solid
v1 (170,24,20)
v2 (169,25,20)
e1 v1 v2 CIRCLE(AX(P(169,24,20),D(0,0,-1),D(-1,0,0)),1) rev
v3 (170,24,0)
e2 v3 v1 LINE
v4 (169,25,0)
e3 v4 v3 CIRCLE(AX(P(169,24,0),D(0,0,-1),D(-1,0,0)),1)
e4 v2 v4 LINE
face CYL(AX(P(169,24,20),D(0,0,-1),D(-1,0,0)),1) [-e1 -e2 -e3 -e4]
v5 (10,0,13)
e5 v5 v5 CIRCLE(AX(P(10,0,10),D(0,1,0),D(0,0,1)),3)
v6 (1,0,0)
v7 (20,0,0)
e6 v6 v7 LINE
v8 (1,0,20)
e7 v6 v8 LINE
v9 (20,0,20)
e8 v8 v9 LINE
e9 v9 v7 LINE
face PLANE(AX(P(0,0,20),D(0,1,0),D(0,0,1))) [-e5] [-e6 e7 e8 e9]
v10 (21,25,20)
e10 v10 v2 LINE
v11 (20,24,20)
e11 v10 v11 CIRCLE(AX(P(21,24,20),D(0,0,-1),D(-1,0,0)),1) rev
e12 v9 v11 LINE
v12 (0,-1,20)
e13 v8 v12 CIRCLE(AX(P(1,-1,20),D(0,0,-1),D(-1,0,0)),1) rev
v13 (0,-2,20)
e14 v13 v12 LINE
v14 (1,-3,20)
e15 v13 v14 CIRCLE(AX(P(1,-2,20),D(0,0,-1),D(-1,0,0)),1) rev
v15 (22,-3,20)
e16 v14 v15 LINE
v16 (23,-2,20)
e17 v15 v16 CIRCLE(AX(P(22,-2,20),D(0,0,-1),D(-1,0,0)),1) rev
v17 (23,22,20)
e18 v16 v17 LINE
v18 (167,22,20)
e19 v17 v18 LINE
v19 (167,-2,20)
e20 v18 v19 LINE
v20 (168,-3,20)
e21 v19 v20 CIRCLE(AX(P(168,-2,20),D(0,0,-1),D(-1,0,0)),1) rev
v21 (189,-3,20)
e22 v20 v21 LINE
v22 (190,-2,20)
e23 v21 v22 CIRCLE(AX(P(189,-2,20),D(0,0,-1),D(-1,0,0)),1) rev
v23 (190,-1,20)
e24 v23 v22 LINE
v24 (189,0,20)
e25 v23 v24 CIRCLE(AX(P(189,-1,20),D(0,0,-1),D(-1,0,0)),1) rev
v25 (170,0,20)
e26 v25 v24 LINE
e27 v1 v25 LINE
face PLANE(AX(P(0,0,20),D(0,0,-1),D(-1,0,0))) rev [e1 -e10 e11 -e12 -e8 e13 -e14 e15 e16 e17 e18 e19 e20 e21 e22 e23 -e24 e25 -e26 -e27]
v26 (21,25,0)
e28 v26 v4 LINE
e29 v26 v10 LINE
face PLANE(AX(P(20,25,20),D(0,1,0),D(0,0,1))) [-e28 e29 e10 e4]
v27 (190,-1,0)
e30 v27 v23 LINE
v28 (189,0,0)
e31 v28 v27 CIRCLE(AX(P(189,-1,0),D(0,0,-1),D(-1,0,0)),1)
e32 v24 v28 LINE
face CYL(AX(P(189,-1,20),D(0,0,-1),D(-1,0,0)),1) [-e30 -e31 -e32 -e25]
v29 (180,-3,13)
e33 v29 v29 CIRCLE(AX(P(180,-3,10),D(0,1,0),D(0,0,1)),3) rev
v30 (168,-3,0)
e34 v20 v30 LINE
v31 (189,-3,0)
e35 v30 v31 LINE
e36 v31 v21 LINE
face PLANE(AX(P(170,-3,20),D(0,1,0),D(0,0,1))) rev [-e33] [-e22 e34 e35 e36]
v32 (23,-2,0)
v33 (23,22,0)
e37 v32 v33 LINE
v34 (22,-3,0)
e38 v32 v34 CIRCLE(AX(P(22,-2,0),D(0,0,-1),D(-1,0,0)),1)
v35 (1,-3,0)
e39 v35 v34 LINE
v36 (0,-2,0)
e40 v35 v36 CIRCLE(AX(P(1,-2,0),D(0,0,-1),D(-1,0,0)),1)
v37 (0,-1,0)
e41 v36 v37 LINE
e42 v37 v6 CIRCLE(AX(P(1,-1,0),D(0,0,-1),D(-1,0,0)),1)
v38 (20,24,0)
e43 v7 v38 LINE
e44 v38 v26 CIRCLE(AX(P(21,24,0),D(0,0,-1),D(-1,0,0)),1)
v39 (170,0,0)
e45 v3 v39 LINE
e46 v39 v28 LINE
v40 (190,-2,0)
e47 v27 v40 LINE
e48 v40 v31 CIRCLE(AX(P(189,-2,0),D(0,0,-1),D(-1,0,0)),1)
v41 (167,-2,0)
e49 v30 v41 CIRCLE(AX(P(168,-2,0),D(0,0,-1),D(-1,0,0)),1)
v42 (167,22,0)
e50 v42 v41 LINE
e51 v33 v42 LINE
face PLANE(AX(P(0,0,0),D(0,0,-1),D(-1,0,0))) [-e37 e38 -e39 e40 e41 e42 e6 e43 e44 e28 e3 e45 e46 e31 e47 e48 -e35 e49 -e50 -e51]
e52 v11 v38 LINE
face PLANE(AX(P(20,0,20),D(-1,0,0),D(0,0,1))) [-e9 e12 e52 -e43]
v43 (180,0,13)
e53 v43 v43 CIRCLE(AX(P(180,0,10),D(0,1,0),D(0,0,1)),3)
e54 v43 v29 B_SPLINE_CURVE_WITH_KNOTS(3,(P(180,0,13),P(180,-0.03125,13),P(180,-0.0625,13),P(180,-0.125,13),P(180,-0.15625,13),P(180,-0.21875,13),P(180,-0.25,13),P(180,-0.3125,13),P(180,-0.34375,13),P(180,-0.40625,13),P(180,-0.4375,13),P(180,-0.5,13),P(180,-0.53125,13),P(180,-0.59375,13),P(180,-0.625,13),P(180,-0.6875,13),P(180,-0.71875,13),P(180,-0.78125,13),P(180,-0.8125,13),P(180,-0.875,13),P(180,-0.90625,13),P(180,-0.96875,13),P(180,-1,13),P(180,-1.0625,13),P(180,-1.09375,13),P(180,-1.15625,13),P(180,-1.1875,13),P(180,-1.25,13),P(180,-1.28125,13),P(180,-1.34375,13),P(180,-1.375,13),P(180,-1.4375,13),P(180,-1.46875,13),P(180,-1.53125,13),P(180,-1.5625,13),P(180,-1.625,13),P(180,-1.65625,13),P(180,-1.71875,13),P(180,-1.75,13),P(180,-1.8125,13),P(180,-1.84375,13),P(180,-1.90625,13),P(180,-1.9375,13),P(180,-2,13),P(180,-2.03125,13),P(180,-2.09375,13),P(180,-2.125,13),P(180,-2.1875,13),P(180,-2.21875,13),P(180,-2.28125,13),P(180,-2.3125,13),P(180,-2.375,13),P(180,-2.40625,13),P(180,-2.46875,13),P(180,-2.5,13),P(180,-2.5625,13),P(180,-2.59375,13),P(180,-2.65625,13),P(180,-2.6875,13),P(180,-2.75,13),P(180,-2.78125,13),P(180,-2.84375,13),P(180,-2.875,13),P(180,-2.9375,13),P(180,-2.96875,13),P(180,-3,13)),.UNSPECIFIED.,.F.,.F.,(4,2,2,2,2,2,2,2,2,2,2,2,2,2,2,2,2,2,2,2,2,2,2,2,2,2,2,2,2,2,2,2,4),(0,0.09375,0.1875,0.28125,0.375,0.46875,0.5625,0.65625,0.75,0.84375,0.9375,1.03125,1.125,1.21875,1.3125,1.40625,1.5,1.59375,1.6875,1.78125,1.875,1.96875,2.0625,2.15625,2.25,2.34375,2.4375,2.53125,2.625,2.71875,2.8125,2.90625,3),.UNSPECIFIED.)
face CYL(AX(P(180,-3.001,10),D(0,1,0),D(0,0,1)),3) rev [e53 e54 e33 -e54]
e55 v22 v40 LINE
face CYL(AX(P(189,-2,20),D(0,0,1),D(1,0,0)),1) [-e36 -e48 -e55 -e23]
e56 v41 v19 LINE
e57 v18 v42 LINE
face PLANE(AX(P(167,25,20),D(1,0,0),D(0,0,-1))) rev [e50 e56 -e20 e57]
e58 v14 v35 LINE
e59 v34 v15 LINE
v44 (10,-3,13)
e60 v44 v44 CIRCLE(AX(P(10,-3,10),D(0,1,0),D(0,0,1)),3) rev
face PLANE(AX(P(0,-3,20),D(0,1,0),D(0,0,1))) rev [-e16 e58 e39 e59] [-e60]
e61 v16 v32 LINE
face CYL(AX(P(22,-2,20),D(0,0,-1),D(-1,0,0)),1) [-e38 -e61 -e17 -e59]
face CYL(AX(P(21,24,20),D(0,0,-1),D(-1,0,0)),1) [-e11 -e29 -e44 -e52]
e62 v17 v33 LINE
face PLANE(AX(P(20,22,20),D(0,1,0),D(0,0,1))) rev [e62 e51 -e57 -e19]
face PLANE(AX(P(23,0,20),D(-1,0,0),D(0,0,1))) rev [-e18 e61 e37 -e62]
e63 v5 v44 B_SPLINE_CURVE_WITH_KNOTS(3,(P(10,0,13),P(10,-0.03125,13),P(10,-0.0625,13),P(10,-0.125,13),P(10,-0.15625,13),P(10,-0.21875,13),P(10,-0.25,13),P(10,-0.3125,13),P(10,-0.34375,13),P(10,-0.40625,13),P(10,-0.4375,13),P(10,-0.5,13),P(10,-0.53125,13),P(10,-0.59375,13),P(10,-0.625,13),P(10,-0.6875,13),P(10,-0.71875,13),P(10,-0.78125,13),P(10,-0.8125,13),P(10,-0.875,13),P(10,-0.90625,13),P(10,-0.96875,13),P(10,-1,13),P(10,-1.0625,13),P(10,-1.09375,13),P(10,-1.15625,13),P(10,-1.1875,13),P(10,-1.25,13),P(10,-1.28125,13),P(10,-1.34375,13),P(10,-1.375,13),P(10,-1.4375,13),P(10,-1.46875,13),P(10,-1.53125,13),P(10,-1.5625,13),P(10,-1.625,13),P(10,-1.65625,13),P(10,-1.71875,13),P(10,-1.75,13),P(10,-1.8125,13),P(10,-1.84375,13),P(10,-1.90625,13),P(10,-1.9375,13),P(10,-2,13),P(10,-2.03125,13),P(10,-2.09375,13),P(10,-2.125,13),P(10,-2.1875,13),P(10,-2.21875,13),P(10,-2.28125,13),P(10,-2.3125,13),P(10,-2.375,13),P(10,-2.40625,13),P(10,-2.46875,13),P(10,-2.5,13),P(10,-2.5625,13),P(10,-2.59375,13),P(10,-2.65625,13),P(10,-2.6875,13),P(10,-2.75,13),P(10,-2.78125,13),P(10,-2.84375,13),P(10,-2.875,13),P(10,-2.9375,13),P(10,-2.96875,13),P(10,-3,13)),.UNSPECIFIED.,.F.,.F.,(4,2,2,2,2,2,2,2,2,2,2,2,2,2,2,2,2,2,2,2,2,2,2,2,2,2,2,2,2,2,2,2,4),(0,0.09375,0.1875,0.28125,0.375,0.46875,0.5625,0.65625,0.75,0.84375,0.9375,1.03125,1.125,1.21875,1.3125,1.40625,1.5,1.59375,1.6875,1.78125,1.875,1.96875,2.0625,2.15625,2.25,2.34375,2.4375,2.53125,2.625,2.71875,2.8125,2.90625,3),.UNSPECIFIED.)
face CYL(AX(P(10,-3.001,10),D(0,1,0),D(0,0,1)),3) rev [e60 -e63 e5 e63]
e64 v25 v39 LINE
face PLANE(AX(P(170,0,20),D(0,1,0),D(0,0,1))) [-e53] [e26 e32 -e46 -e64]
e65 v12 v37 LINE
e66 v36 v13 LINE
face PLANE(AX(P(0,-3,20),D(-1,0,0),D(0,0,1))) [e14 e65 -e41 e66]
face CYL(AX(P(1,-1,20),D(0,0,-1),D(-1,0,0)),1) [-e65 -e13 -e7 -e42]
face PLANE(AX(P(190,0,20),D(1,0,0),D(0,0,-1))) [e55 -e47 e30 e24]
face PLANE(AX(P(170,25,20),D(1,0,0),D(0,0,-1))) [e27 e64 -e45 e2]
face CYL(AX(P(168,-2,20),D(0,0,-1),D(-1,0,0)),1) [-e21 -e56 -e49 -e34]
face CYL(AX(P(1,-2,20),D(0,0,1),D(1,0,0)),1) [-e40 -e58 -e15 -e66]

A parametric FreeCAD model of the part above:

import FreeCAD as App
import Part
import Sketcher


def edges_at(feature, points):
    """Names of the edges that pass closest to the given points."""
    edges = feature.Shape.Edges
    near = lambda p: min(range(len(edges)), key=lambda i: edges[i].distToShape(Part.Vertex(*p))[0])
    return sorted({f"Edge{near(p) + 1}" for p in points})

doc = App.newDocument("Part")
body = doc.addObject("PartDesign::Body", "Body")

# Sketch on XY plane
sketch1 = body.newObject("Sketcher::SketchObject", "Sketch")
sketch1.AttachmentSupport = (doc.getObject("XY_Plane"), [""])
sketch1.MapMode = "FlatFace"
sketch1.addGeometry([
    Part.LineSegment(App.Vector(20, 0, 0), App.Vector(0, 0, 0)),  # 0
    Part.LineSegment(App.Vector(0, 0, 0), App.Vector(0, -3, 0)),  # 1
    Part.LineSegment(App.Vector(0, -3, 0), App.Vector(23, -3, 0)),  # 2
    Part.LineSegment(App.Vector(23, -3, 0), App.Vector(23, 22, 0)),  # 3
    Part.LineSegment(App.Vector(23, 22, 0), App.Vector(167, 22, 0)),  # 4
    Part.LineSegment(App.Vector(167, 22, 0), App.Vector(167, -3, 0)),  # 5
    Part.LineSegment(App.Vector(167, -3, 0), App.Vector(190, -3, 0)),  # 6
    Part.LineSegment(App.Vector(190, -3, 0), App.Vector(190, 0, 0)),  # 7
    Part.LineSegment(App.Vector(190, 0, 0), App.Vector(170, 0, 0)),  # 8
    Part.LineSegment(App.Vector(170, 0, 0), App.Vector(170, 25, 0)),  # 9
    Part.LineSegment(App.Vector(170, 25, 0), App.Vector(20, 25, 0)),  # 10
    Part.LineSegment(App.Vector(20, 25, 0), App.Vector(20, 0, 0)),  # 11
], False)
sketch1.addConstraint([
    Sketcher.Constraint("Coincident", 0, 2, 1, 1),
    Sketcher.Constraint("Coincident", 1, 2, 2, 1),
    Sketcher.Constraint("Coincident", 2, 2, 3, 1),
    Sketcher.Constraint("Coincident", 3, 2, 4, 1),
    Sketcher.Constraint("Coincident", 4, 2, 5, 1),
    Sketcher.Constraint("Coincident", 5, 2, 6, 1),
    Sketcher.Constraint("Coincident", 6, 2, 7, 1),
    Sketcher.Constraint("Coincident", 7, 2, 8, 1),
    Sketcher.Constraint("Coincident", 8, 2, 9, 1),
    Sketcher.Constraint("Coincident", 9, 2, 10, 1),
    Sketcher.Constraint("Coincident", 10, 2, 11, 1),
    Sketcher.Constraint("Coincident", 11, 2, 0, 1),
    Sketcher.Constraint("Horizontal", 0),
    Sketcher.Constraint("Vertical", 1),
    Sketcher.Constraint("Horizontal", 2),
    Sketcher.Constraint("Vertical", 3),
    Sketcher.Constraint("Horizontal", 4),
    Sketcher.Constraint("Vertical", 5),
    Sketcher.Constraint("Horizontal", 6),
    Sketcher.Constraint("Vertical", 7),
    Sketcher.Constraint("Horizontal", 8),
    Sketcher.Constraint("Vertical", 9),
    Sketcher.Constraint("Horizontal", 10),
    Sketcher.Constraint("Vertical", 11),
    Sketcher.Constraint("Coincident", 0, 2, -1, 1),
    Sketcher.Constraint("PointOnObject", 7, 2, -1),
    Sketcher.Constraint("Horizontal", 2, 2, 5, 2),
    Sketcher.Constraint("Equal", 2, 6),
    Sketcher.Constraint("Equal", 0, 8),
    Sketcher.Constraint("Equal", 5, 9),
    Sketcher.Constraint("DistanceX", 0, 2, 0, 1, 20.0),
    Sketcher.Constraint("DistanceX", 2, 1, 2, 2, 23.0),
    Sketcher.Constraint("DistanceX", 4, 1, 4, 2, 144.0),
    Sketcher.Constraint("DistanceY", 1, 2, 1, 1, 3.0),
    Sketcher.Constraint("DistanceY", 3, 1, 3, 2, 25.0),
])
pad1 = body.newObject("PartDesign::Pad", "Pad")
pad1.Profile = sketch1
pad1.Length = 20
doc.recompute()

fillet = body.newObject("PartDesign::Fillet", "Fillet")
fillet.Base = (pad1, edges_at(pad1, [
    (167, -3, 10),
    (23, -3, 10),
    (0, -3, 10),
    (0, 0, 10),
    (20, 25, 10),
    (170, 25, 10),
    (190, 0, 10),
    (190, -3, 10),
]))
fillet.Radius = 1

# Sketch on XZ plane
sketch2 = body.newObject("Sketcher::SketchObject", "Sketch001")
sketch2.AttachmentSupport = (doc.getObject("XZ_Plane"), [""])
sketch2.MapMode = "FlatFace"
sketch2.addGeometry(Part.Circle(App.Vector(10, 10, 0), App.Vector(0, 0, 1), 3), False)
sketch2.addConstraint([
    Sketcher.Constraint("Diameter", 0, 6.0),
    Sketcher.Constraint("DistanceX", -1, 1, 0, 3, 10.0),
    Sketcher.Constraint("DistanceY", -1, 1, 0, 3, 10.0),
])
pocket1 = body.newObject("PartDesign::Pocket", "Pocket")
pocket1.Profile = sketch2
pocket1.Type = "UpToFirst"
pocket1.Reversed = True

# Sketch on XZ plane
sketch3 = body.newObject("Sketcher::SketchObject", "Sketch002")
sketch3.AttachmentSupport = (doc.getObject("XZ_Plane"), [""])
sketch3.MapMode = "FlatFace"
sketch3.addGeometry(Part.Circle(App.Vector(180, 10, 0), App.Vector(0, 0, 1), 3), False)
sketch3.addConstraint([
    Sketcher.Constraint("Diameter", 0, 6.0),
    Sketcher.Constraint("DistanceX", -1, 1, 0, 3, 180.0),
    Sketcher.Constraint("DistanceY", -1, 1, 0, 3, 10.0),
])
pocket2 = body.newObject("PartDesign::Pocket", "Pocket001")
pocket2.Profile = sketch3
pocket2.Type = "UpToFirst"
pocket2.Reversed = True

doc.recompute()
